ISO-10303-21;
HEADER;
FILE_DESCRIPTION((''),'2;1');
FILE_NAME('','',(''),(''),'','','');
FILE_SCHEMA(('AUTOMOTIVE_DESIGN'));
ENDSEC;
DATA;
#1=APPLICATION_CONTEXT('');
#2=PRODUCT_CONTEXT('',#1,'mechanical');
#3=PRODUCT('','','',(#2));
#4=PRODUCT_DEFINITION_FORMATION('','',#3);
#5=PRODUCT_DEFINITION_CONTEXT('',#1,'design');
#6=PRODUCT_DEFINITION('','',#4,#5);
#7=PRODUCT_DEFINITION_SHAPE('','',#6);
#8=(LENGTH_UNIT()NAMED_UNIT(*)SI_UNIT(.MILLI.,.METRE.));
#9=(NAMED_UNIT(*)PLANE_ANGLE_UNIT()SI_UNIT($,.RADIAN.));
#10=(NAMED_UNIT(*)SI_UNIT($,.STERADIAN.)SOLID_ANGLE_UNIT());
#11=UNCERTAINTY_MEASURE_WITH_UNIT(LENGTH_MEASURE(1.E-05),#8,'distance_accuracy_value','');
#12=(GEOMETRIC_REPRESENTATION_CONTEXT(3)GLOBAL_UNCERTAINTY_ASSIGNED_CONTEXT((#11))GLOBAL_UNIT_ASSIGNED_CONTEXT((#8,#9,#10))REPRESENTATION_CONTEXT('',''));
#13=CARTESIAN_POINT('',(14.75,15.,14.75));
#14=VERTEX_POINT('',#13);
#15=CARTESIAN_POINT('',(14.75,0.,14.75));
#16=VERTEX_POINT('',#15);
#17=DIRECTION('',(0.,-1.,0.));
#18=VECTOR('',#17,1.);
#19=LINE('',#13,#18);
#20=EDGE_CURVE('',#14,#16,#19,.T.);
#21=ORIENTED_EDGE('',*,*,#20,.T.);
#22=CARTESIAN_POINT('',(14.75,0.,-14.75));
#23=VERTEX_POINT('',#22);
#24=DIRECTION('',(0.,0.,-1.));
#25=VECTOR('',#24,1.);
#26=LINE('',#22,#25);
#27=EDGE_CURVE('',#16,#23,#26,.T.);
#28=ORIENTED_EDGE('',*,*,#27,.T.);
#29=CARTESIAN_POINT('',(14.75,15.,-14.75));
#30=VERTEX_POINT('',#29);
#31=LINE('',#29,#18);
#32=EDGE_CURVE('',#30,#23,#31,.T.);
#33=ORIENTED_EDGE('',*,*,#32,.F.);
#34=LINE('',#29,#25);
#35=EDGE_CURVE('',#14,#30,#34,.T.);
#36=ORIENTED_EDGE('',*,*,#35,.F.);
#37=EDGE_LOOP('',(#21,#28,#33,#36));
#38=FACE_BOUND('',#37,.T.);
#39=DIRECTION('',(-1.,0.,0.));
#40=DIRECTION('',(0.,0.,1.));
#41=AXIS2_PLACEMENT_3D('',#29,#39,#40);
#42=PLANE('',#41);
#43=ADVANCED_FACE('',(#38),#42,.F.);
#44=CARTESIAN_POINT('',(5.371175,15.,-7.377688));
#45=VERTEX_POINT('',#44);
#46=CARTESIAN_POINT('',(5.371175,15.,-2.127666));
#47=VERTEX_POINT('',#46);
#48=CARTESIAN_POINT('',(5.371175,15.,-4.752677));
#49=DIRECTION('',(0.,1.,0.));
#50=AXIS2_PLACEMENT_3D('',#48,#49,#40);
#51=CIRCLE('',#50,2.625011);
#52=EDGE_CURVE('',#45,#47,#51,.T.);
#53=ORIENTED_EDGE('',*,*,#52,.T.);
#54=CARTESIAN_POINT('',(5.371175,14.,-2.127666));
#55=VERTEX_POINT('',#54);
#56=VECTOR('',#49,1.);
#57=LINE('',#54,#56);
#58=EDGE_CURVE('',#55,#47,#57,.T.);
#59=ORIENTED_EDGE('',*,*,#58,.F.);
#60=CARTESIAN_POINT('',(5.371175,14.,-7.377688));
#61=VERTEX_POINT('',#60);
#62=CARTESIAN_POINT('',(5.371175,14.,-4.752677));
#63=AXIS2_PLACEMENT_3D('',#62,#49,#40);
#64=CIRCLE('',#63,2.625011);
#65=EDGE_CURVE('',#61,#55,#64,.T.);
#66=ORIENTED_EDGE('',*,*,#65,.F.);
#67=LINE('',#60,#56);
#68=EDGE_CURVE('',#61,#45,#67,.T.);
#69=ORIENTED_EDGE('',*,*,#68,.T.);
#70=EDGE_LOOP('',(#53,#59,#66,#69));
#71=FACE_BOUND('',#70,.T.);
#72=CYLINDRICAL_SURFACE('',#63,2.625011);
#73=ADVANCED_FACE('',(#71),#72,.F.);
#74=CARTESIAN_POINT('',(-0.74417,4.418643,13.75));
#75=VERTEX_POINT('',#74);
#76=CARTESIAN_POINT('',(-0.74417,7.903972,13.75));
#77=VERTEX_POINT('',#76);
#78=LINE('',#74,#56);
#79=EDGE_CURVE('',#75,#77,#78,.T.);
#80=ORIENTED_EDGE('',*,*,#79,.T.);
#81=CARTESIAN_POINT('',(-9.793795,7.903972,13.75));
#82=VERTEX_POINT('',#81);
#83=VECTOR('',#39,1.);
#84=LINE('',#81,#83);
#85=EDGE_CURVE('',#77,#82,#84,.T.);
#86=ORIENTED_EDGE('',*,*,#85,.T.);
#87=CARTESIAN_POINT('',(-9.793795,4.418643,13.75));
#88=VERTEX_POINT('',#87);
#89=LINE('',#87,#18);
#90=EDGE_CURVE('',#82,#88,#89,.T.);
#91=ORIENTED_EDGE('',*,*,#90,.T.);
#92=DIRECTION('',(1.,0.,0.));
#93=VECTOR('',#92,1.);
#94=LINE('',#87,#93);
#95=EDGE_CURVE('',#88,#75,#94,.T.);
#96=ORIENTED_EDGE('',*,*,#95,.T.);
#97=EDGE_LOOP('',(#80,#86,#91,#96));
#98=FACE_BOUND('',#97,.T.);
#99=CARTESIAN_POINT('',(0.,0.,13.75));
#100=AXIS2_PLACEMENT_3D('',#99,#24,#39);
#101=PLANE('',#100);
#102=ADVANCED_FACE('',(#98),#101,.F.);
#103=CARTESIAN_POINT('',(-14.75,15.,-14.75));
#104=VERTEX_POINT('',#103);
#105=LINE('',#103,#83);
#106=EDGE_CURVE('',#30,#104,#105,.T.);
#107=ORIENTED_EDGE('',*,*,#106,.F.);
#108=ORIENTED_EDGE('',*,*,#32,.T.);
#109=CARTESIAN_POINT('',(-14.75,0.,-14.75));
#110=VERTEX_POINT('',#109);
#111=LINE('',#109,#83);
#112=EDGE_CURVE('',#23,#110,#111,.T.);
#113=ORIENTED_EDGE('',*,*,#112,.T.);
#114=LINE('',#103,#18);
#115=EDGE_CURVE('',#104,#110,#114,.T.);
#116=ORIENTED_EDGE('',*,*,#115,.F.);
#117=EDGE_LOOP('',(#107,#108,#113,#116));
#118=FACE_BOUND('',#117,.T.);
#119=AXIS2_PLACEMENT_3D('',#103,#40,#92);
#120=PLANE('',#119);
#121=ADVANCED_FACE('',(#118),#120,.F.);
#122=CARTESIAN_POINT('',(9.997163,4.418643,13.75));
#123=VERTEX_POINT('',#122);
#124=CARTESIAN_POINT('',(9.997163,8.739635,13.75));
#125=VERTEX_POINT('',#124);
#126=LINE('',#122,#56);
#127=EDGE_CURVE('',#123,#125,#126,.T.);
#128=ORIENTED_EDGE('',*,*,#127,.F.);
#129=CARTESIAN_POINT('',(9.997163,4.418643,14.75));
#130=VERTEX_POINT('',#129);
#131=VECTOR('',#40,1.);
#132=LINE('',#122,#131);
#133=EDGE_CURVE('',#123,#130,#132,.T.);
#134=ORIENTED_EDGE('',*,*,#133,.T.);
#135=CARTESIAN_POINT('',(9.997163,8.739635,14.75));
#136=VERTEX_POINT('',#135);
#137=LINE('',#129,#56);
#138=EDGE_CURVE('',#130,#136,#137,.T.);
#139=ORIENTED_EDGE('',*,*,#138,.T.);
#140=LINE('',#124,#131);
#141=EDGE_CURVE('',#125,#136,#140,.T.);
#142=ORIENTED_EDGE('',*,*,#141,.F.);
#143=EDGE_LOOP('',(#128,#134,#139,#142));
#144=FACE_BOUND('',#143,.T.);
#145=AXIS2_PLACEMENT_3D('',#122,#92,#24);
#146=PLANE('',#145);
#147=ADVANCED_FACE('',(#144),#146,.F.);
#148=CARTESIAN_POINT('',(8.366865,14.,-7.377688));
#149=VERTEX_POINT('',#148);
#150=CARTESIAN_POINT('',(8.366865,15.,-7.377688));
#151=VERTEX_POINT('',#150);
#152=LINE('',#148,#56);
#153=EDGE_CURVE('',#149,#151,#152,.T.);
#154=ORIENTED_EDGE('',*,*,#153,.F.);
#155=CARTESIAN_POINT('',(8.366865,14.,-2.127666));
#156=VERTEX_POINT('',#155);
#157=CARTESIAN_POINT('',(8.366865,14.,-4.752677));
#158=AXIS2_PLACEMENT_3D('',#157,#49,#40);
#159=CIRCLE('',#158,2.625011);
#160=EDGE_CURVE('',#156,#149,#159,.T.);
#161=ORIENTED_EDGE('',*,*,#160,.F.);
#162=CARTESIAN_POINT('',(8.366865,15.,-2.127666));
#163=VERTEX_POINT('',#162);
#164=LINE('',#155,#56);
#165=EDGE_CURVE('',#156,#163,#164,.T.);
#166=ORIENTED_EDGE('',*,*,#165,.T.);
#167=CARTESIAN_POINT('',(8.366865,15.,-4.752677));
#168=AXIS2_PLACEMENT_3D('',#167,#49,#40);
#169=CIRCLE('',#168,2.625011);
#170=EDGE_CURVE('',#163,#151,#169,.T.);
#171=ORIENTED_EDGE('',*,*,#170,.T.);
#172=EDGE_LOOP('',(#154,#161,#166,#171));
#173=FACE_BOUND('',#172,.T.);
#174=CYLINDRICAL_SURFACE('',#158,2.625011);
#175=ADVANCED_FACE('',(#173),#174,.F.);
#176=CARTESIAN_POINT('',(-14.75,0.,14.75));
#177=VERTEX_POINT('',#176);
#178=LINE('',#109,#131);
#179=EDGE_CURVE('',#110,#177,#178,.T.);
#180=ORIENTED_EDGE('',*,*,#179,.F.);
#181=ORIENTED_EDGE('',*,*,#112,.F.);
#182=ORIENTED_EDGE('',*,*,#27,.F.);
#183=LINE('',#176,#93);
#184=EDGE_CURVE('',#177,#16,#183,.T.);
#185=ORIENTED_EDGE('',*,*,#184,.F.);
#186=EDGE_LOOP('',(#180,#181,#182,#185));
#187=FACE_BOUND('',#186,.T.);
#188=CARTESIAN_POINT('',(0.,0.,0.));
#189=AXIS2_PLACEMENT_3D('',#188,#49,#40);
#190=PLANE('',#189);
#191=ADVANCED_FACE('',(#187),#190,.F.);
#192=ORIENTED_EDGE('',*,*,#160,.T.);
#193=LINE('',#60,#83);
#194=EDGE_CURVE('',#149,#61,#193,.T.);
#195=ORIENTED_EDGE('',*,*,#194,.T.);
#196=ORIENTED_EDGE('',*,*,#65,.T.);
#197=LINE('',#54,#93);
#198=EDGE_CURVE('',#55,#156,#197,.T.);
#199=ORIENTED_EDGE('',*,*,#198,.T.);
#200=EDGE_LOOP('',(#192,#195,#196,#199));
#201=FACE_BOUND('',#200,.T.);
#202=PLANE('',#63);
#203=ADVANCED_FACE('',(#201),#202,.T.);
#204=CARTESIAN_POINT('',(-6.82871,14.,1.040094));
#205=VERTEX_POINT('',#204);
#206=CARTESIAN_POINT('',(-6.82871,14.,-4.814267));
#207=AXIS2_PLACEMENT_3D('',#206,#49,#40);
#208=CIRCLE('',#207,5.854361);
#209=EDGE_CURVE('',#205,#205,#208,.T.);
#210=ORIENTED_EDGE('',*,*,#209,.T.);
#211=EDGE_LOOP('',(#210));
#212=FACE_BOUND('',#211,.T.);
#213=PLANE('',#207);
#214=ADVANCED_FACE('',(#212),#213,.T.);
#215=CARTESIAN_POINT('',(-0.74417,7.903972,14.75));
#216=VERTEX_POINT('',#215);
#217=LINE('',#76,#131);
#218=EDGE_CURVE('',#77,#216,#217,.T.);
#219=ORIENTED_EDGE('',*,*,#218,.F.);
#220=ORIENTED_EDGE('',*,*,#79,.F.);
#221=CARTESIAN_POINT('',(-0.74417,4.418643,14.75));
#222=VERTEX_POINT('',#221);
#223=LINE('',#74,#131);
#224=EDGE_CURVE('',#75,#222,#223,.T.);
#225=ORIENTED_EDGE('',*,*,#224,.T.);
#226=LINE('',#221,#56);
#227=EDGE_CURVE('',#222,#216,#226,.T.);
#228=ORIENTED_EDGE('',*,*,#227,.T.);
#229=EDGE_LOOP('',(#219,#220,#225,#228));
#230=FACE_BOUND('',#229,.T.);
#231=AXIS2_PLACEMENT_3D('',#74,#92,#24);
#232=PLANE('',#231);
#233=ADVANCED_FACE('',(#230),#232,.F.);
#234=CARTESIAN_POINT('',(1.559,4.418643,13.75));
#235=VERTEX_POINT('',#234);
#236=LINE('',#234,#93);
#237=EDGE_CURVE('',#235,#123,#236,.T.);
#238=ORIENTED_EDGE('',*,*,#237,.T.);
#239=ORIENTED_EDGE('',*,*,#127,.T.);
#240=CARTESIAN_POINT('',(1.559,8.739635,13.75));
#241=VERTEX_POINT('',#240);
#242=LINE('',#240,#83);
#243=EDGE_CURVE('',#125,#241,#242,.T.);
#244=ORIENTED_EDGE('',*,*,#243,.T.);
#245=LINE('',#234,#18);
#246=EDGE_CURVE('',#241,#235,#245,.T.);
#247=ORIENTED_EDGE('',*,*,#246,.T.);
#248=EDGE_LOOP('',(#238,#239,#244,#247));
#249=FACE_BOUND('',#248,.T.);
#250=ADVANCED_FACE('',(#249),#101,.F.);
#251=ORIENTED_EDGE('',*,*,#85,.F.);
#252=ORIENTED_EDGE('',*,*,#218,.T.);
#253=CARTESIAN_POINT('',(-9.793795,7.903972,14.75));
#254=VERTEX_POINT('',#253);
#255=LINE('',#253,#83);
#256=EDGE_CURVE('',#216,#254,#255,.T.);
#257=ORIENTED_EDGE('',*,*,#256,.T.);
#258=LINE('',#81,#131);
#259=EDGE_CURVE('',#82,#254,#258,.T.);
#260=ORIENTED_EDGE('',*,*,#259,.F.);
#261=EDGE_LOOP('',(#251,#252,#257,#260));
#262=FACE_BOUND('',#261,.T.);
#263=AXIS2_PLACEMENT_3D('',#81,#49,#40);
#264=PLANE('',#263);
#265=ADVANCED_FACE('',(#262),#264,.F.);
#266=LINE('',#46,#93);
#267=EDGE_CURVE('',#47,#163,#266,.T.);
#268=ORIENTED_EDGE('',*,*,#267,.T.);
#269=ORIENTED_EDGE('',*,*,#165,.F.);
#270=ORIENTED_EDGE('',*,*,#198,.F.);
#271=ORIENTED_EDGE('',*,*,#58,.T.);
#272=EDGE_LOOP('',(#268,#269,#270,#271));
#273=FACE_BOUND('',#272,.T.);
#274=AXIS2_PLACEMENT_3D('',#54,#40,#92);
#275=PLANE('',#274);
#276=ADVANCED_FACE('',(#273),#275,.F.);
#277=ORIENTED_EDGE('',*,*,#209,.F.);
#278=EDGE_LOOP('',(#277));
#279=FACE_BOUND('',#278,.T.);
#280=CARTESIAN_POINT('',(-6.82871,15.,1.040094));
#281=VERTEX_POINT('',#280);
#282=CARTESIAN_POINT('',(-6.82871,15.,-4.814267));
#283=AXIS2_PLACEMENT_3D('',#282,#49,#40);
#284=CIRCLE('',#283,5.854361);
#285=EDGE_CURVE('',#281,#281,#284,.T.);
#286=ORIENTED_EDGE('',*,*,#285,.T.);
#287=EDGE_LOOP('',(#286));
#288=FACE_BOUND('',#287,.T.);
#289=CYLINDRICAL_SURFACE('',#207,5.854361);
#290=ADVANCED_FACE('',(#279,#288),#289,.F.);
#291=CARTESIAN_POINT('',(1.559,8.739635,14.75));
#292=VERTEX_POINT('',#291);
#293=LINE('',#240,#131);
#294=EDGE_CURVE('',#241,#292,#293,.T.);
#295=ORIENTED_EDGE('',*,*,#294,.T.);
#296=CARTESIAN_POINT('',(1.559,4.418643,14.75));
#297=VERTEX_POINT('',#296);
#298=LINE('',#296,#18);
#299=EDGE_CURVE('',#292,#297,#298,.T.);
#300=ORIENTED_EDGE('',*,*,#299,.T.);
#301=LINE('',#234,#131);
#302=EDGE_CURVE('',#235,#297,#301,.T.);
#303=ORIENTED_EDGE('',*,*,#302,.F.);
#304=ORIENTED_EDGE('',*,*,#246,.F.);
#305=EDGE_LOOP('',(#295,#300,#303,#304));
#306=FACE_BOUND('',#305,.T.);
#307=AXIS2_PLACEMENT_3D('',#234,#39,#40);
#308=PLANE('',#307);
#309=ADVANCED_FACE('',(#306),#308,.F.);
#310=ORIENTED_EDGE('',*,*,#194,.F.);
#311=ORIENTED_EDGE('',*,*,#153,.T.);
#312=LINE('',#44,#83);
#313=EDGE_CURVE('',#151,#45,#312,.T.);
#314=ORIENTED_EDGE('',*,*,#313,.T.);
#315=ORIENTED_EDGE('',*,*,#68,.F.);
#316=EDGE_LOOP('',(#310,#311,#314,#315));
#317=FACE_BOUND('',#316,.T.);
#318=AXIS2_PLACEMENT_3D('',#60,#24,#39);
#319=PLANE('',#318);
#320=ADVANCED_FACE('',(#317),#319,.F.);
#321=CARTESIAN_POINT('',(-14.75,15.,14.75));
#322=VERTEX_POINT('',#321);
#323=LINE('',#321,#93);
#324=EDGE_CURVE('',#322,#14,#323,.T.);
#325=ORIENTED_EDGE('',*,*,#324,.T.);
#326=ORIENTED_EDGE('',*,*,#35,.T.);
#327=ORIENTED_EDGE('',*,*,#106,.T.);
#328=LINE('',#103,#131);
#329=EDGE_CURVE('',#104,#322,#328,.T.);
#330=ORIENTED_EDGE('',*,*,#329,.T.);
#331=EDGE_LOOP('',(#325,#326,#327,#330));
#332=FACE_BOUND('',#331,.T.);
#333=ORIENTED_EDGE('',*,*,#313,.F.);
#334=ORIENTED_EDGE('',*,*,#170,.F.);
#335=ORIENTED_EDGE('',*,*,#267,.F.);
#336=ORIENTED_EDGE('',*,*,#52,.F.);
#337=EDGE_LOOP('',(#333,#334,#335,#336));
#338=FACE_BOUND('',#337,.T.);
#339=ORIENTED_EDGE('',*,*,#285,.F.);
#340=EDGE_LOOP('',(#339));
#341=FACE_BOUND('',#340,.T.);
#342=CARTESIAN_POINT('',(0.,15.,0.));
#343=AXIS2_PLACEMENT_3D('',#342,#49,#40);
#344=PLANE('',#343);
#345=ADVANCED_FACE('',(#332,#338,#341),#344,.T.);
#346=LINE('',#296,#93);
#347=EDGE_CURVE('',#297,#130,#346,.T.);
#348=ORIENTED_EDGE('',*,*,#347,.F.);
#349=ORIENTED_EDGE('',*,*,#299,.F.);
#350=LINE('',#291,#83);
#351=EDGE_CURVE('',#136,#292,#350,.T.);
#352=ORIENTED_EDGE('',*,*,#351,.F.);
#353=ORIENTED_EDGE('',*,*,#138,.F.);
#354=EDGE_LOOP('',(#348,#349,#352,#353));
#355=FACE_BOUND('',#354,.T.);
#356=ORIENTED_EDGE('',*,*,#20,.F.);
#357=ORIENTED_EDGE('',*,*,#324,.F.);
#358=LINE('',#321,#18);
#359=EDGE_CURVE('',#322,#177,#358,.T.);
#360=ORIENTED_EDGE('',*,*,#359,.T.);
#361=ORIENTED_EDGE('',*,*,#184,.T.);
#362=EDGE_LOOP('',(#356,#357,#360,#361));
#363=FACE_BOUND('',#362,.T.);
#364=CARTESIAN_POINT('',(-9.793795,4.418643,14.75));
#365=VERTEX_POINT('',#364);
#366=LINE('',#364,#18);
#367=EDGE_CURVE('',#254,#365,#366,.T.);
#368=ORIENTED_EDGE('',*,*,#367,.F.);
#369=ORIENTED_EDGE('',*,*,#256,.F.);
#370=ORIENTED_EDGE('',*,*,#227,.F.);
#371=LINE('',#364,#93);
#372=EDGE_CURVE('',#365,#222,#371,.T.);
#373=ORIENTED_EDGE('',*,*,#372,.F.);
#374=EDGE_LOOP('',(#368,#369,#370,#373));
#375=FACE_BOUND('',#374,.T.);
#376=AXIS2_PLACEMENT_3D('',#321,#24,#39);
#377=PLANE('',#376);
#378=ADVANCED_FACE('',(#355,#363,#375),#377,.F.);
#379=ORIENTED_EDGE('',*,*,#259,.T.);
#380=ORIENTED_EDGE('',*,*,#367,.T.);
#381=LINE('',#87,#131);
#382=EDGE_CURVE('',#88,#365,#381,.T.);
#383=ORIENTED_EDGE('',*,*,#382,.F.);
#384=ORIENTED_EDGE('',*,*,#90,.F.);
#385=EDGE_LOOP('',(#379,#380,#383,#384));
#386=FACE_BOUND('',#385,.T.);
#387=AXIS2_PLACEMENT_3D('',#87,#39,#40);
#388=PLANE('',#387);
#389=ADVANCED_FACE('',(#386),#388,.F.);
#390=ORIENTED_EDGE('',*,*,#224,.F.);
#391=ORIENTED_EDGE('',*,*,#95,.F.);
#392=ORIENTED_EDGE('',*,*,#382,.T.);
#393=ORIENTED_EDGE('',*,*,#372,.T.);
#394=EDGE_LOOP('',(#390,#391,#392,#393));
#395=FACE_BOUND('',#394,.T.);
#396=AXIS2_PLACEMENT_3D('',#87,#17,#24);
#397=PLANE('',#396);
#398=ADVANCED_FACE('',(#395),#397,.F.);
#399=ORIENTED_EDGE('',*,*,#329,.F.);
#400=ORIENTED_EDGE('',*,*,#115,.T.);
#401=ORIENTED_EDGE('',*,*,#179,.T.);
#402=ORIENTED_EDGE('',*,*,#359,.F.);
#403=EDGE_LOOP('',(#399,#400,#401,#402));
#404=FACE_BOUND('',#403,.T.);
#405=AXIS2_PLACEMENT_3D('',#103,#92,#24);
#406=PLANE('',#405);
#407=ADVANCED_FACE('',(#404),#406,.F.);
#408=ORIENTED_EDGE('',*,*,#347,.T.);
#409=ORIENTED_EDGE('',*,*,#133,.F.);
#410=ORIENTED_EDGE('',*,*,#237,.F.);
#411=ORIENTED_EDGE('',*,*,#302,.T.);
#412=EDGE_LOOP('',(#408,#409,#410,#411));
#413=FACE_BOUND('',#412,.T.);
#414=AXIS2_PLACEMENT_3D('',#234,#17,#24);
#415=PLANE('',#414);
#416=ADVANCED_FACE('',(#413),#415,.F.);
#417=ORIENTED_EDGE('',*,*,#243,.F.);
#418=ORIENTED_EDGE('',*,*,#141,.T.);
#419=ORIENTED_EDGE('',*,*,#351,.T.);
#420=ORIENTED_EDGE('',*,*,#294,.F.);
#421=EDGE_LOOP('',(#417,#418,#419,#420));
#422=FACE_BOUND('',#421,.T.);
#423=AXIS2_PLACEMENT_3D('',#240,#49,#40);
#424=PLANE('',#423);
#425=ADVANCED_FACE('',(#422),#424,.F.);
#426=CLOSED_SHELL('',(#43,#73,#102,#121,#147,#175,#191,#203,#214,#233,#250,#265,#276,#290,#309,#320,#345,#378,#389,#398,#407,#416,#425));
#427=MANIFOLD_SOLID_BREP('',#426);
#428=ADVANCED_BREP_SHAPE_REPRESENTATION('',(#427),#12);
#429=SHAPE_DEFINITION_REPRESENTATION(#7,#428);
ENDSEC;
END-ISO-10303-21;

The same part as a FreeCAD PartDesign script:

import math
import FreeCAD as App
import Part
import Sketcher

doc = App.newDocument("Part")
body = doc.addObject("PartDesign::Body", "Body")

# Sketch on XZ plane
sketch1 = body.newObject("Sketcher::SketchObject", "Sketch")
sketch1.AttachmentSupport = (doc.getObject("XZ_Plane"), [""])
sketch1.MapMode = "FlatFace"
sketch1.addGeometry([
    Part.LineSegment(App.Vector(-14.75, -14.75, 0), App.Vector(-14.75, 14.75, 0)),
    Part.LineSegment(App.Vector(-14.75, 14.75, 0), App.Vector(14.75, 14.75, 0)),
    Part.LineSegment(App.Vector(14.75, 14.75, 0), App.Vector(14.75, -14.75, 0)),
    Part.LineSegment(App.Vector(14.75, -14.75, 0), App.Vector(-14.75, -14.75, 0)),
], False)
sketch1.addConstraint([
    Sketcher.Constraint("Coincident", 0, 2, 1, 1),
    Sketcher.Constraint("Coincident", 1, 2, 2, 1),
    Sketcher.Constraint("Coincident", 2, 2, 3, 1),
    Sketcher.Constraint("Coincident", 3, 2, 0, 1),
    Sketcher.Constraint("Vertical", 0),
    Sketcher.Constraint("Horizontal", 1),
    Sketcher.Constraint("Vertical", 2),
    Sketcher.Constraint("Horizontal", 3),
    Sketcher.Constraint("Symmetric", 0, 2, 2, 2, -1, 1),
    Sketcher.Constraint("Equal", 3, 0),
    Sketcher.Constraint("DistanceX", 1, 1, 1, 2, 29.5),
])
pad1 = body.newObject("PartDesign::Pad", "Pad")
pad1.Profile = sketch1
pad1.Length = 15
pad1.Reversed = True

# Sketch on XZ plane
sketch2 = body.newObject("Sketcher::SketchObject", "Sketch001")
sketch2.AttachmentSupport = (doc.getObject("XZ_Plane"), [""])
sketch2.MapMode = "FlatFace"
sketch2.AttachmentOffset = App.Placement(App.Vector(0, 0, -15), App.Rotation())
sketch2.addGeometry([
    Part.Circle(App.Vector(-6.82871, -4.814267, 0), App.Vector(0, 0, 1), 5.854361),  # 0
    Part.LineSegment(App.Vector(8.366865, -7.377688, 0), App.Vector(5.371175, -7.377688, 0)),  # 1
    Part.ArcOfCircle(Part.Circle(App.Vector(5.371175, -4.752677, 0), App.Vector(0, 0, 1), 2.625011), math.radians(90), math.radians(270)),  # 2
    Part.LineSegment(App.Vector(5.371175, -2.127666, 0), App.Vector(8.366865, -2.127666, 0)),  # 3
    Part.ArcOfCircle(Part.Circle(App.Vector(8.366865, -4.752677, 0), App.Vector(0, 0, 1), 2.625011), math.radians(-90), math.radians(90)),  # 4
], False)
sketch2.addConstraint([
    Sketcher.Constraint("Tangent", 1, 2, 2, 2),
    Sketcher.Constraint("Tangent", 2, 1, 3, 1),
    Sketcher.Constraint("Tangent", 3, 2, 4, 2),
    Sketcher.Constraint("Tangent", 4, 1, 1, 1),
    Sketcher.Constraint("Horizontal", 1),
    Sketcher.Constraint("Horizontal", 3),
    Sketcher.Constraint("Diameter", 0, 11.708722),
    Sketcher.Constraint("Radius", 2, 2.625011),
    Sketcher.Constraint("DistanceX", 1, 2, 1, 1, 2.99569),
    Sketcher.Constraint("DistanceY", 0, 3, 2, 1, 2.6866),
    Sketcher.Constraint("DistanceX", 0, 3, -1, 1, 6.82871),
    Sketcher.Constraint("DistanceY", 1, 2, -1, 1, 7.377688),
    Sketcher.Constraint("DistanceX", -1, 1, 2, 3, 5.371175),
])
pocket1 = body.newObject("PartDesign::Pocket", "Pocket")
pocket1.Profile = sketch2
pocket1.Length = 1
pocket1.Reversed = True

# Sketch on XY plane
sketch3 = body.newObject("Sketcher::SketchObject", "Sketch002")
sketch3.AttachmentSupport = (doc.getObject("XY_Plane"), [""])
sketch3.MapMode = "FlatFace"
sketch3.AttachmentOffset = App.Placement(App.Vector(0, 0, 14.75), App.Rotation())
sketch3.addGeometry([
    Part.LineSegment(App.Vector(1.559, 8.739635, 0), App.Vector(1.559, 4.418643, 0)),  # 0
    Part.LineSegment(App.Vector(1.559, 4.418643, 0), App.Vector(9.997163, 4.418643, 0)),  # 1
    Part.LineSegment(App.Vector(9.997163, 4.418643, 0), App.Vector(9.997163, 8.739635, 0)),  # 2
    Part.LineSegment(App.Vector(9.997163, 8.739635, 0), App.Vector(1.559, 8.739635, 0)),  # 3
    Part.LineSegment(App.Vector(-9.793795, 7.903972, 0), App.Vector(-9.793795, 4.418643, 0)),  # 4
    Part.LineSegment(App.Vector(-9.793795, 4.418643, 0), App.Vector(-0.74417, 4.418643, 0)),  # 5
    Part.LineSegment(App.Vector(-0.74417, 4.418643, 0), App.Vector(-0.74417, 7.903972, 0)),  # 6
    Part.LineSegment(App.Vector(-0.74417, 7.903972, 0), App.Vector(-9.793795, 7.903972, 0)),  # 7
], False)
sketch3.addConstraint([
    Sketcher.Constraint("Coincident", 0, 2, 1, 1),
    Sketcher.Constraint("Coincident", 1, 2, 2, 1),
    Sketcher.Constraint("Coincident", 2, 2, 3, 1),
    Sketcher.Constraint("Coincident", 3, 2, 0, 1),
    Sketcher.Constraint("Coincident", 4, 2, 5, 1),
    Sketcher.Constraint("Coincident", 5, 2, 6, 1),
    Sketcher.Constraint("Coincident", 6, 2, 7, 1),
    Sketcher.Constraint("Coincident", 7, 2, 4, 1),
    Sketcher.Constraint("Vertical", 0),
    Sketcher.Constraint("Horizontal", 1),
    Sketcher.Constraint("Vertical", 2),
    Sketcher.Constraint("Horizontal", 3),
    Sketcher.Constraint("Vertical", 4),
    Sketcher.Constraint("Horizontal", 5),
    Sketcher.Constraint("Vertical", 6),
    Sketcher.Constraint("Horizontal", 7),
    Sketcher.Constraint("Horizontal", 1, 2, 4, 2),
    Sketcher.Constraint("DistanceX", -1, 1, 0, 2, 1.559),
    Sketcher.Constraint("DistanceY", 4, 2, 4, 1, 3.485328),
    Sketcher.Constraint("DistanceX", 1, 1, 1, 2, 8.438164),
    Sketcher.Constraint("DistanceX", 5, 1, 5, 2, 9.049625),
    Sketcher.Constraint("DistanceY", 0, 2, 0, 1, 4.320992),
    Sketcher.Constraint("DistanceX", 5, 2, -1, 1, 0.74417),
    Sketcher.Constraint("DistanceY", -1, 1, 6, 2, 7.903972),
])
pocket2 = body.newObject("PartDesign::Pocket", "Pocket001")
pocket2.Profile = sketch3
pocket2.Length = 1

doc.recompute()
